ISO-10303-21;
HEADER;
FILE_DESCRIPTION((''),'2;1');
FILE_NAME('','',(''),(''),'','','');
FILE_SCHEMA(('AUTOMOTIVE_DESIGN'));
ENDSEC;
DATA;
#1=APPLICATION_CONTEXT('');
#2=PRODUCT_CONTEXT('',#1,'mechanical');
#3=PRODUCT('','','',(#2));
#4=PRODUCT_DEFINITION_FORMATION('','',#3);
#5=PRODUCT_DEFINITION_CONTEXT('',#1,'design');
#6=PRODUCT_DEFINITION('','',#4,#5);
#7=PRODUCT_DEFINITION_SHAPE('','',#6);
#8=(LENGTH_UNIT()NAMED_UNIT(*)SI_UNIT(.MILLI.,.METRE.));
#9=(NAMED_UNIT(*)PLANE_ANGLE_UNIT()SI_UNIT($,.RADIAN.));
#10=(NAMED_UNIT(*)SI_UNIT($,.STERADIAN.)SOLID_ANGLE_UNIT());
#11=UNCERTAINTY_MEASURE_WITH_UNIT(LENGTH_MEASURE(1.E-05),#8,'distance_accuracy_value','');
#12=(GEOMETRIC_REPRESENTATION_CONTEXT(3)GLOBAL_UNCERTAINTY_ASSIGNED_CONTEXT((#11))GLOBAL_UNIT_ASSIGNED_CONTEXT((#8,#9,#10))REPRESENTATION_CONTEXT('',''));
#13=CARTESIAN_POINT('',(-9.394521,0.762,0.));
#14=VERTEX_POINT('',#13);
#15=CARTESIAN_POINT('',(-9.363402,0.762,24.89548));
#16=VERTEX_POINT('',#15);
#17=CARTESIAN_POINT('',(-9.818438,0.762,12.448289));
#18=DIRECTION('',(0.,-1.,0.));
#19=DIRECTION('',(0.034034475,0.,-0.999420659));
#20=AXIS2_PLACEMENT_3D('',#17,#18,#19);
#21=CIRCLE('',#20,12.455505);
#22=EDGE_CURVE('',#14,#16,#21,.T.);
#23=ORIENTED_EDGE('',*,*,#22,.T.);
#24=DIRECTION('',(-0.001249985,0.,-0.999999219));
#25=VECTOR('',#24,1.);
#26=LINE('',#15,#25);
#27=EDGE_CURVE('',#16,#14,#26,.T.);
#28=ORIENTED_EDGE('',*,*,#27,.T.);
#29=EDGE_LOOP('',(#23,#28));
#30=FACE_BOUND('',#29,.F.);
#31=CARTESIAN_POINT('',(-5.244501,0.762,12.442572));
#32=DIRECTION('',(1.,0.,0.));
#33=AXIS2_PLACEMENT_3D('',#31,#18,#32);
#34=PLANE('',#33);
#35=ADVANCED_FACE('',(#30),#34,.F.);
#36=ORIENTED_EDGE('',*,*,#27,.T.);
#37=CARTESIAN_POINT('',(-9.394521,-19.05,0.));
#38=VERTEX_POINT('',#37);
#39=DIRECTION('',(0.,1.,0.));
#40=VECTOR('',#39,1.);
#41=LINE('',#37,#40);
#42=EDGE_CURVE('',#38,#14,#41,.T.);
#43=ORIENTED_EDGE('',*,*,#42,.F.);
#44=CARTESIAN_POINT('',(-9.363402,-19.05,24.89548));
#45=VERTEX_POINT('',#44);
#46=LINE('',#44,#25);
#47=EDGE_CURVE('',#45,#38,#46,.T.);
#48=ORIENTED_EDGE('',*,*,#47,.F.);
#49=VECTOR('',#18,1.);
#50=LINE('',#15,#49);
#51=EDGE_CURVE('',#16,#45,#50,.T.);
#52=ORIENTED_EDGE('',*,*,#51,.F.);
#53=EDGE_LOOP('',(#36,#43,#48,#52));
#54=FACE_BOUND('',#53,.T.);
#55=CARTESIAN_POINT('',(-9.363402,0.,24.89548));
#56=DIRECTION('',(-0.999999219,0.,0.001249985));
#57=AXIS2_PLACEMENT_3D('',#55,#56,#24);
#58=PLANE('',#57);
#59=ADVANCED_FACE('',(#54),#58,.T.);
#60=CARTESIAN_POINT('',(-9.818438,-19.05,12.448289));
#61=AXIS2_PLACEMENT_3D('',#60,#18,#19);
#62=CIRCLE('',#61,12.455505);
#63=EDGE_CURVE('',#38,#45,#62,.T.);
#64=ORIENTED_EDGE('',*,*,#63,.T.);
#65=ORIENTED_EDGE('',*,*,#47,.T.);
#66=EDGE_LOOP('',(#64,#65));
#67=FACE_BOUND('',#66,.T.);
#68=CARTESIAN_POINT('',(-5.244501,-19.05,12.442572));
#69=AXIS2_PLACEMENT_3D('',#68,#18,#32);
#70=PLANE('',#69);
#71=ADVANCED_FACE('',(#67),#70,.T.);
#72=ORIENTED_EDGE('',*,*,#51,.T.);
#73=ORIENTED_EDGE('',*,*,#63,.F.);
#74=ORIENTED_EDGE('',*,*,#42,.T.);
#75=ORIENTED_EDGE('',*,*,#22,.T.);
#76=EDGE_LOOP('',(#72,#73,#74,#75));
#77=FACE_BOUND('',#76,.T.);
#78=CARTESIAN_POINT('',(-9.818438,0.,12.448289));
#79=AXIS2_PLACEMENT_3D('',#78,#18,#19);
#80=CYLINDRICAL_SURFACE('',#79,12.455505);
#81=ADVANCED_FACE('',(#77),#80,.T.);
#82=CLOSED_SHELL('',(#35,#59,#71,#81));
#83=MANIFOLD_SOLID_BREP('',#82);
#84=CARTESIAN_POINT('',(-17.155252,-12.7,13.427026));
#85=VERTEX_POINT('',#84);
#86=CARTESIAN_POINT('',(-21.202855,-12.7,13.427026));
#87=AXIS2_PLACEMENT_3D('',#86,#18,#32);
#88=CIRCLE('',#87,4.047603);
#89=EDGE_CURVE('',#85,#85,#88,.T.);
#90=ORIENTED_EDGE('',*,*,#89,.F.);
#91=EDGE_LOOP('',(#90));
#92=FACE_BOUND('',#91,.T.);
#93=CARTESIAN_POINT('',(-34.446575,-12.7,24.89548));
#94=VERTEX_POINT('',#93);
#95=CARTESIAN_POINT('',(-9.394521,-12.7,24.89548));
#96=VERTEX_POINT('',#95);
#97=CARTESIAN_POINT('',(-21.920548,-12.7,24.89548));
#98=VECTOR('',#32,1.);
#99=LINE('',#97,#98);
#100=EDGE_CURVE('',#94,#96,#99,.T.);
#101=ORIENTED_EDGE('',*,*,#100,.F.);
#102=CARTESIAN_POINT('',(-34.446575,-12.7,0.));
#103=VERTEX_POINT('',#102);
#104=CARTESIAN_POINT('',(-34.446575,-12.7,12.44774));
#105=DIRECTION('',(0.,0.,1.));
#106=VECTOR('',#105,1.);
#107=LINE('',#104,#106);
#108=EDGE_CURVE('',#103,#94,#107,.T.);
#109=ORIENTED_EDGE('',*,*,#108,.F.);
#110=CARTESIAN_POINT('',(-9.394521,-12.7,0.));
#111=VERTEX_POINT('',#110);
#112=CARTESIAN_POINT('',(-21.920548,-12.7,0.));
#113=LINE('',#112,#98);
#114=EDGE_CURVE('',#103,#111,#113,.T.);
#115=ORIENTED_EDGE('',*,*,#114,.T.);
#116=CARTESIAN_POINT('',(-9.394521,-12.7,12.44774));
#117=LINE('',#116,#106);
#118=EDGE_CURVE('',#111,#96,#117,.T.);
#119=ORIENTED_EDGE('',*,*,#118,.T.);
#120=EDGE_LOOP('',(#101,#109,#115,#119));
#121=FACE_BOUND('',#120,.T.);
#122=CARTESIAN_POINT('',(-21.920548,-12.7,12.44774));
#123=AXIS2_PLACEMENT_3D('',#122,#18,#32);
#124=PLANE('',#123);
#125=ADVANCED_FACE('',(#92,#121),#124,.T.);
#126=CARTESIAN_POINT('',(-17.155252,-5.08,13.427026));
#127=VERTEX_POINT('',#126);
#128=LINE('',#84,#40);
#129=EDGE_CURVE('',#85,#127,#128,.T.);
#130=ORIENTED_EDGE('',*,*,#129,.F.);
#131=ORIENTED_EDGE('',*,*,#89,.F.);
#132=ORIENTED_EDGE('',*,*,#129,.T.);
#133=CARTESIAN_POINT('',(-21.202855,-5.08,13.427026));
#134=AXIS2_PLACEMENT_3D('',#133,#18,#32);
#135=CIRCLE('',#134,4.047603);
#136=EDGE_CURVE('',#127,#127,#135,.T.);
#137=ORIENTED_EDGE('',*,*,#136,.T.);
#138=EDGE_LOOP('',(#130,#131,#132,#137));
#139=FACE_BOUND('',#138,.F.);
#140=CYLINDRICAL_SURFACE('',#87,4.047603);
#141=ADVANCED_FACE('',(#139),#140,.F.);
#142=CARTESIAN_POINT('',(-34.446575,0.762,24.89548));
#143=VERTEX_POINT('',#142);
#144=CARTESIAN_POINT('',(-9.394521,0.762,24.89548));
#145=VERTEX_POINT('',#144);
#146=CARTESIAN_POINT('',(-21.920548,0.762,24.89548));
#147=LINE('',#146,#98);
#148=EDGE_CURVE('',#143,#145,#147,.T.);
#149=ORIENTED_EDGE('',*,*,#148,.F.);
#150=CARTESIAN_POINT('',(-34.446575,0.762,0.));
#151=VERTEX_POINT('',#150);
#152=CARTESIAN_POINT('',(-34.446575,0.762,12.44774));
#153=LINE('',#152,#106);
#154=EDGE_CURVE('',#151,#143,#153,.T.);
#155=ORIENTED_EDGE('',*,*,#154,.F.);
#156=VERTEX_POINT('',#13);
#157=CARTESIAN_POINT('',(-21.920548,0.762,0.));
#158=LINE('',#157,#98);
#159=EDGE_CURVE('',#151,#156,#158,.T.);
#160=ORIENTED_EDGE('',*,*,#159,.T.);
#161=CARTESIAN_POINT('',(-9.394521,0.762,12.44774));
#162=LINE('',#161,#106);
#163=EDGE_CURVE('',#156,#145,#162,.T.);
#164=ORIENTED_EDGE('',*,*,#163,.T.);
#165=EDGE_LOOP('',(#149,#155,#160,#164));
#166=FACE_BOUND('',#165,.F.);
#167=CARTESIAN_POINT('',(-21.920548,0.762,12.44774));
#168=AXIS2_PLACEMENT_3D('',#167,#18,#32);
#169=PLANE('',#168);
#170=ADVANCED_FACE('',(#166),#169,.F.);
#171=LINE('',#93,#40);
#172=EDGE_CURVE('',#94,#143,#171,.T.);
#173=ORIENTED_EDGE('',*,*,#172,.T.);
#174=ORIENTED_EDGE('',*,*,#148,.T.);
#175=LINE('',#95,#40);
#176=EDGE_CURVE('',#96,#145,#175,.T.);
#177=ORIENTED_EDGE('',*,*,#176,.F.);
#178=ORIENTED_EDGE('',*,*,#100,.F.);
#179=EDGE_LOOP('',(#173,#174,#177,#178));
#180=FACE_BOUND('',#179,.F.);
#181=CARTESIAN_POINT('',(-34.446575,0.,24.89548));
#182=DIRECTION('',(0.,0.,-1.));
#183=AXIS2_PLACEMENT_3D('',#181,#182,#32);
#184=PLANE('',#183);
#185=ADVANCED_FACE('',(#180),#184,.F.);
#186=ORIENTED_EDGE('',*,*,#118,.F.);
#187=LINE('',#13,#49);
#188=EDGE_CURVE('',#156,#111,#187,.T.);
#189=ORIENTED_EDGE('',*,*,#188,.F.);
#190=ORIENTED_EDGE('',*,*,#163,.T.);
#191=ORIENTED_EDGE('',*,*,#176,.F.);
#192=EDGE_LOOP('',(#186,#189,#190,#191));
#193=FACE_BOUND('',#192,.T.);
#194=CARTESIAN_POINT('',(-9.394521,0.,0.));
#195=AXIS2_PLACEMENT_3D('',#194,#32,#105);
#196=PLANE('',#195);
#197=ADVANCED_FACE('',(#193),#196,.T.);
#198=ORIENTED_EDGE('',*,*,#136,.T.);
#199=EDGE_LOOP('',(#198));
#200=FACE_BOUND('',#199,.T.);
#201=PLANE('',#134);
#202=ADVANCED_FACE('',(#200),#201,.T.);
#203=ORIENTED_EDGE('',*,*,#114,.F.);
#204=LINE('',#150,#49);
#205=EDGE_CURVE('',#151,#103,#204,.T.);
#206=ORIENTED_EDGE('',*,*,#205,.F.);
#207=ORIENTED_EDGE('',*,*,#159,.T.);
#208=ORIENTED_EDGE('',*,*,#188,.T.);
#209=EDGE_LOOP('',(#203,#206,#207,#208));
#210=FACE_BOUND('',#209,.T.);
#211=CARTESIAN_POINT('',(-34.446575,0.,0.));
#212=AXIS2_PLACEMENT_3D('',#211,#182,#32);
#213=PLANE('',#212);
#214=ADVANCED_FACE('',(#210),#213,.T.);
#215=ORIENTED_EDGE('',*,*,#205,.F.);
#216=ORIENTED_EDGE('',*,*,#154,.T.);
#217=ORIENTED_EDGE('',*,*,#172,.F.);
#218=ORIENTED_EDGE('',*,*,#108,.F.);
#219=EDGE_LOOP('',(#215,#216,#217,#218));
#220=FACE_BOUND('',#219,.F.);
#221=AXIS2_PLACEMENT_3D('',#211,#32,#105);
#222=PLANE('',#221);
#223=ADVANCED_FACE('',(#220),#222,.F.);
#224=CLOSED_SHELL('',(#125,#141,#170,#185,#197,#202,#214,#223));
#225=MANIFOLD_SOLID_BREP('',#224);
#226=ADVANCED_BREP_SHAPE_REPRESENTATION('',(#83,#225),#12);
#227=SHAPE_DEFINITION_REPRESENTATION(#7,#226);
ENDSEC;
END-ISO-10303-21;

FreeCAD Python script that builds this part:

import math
import FreeCAD as App
import Part
import Sketcher
Q = App.Units.Quantity


def add_polygon(sketch, points):
    """Adds a closed chain of lines whose ends are joined by coincident constraints."""
    first, n = sketch.GeometryCount, len(points)
    for a, b in zip(points, points[1:] + points[:1]):
        sketch.addGeometry(Part.LineSegment(App.Vector(*a, 0), App.Vector(*b, 0)), False)
    for i in range(n):
        sketch.addConstraint(Sketcher.Constraint("Coincident", first + i, 2, first + (i + 1) % n, 1))

doc = App.newDocument("Part")
body = doc.addObject("PartDesign::Body", "Body")

# Sketch on XZ plane
sketch1 = doc.addObject("Sketcher::SketchObject", "Sketch")
body.addObject(sketch1)
sketch1.AttachmentSupport = (doc.XZ_Plane, [""])
sketch1.MapMode = "FlatFace"
add_polygon(sketch1, [(-34.446575, 24.89548), (-34.446575, 0), (-9.394521, 0), (-9.394521, 24.89548)])  # lines 0-3
sketch1.addConstraint([
    Sketcher.Constraint("Vertical", 0),
    Sketcher.Constraint("Horizontal", 1),
    Sketcher.Constraint("Vertical", 2),
    Sketcher.Constraint("Horizontal", 3),
    Sketcher.Constraint("PointOnObject", 0, 2, -1),
    Sketcher.Constraint("DistanceY", 0, 2, 0, 1, Q("24.89548 mm")),
    Sketcher.Constraint("DistanceX", 1, 1, 1, 2, Q("25.052054 mm")),
    Sketcher.Constraint("DistanceX", 1, 2, -1, 1, Q("9.394521 mm")),
])
pad1 = doc.addObject("PartDesign::Pad", "Pad")
body.addObject(pad1)
pad1.Profile = sketch1
pad1.Type = "TwoLengths"
pad1.Length = Q("0.5 in")
pad1.Length2 = Q("0.03 in")

# Sketch on XZ plane
sketch2 = doc.addObject("Sketcher::SketchObject", "Sketch001")
body.addObject(sketch2)
sketch2.AttachmentSupport = (doc.XZ_Plane, [""])
sketch2.MapMode = "FlatFace"
sketch2.AttachmentOffset = App.Placement(App.Vector(0, 0, 0.5 * 25.4), App.Rotation())
sketch2.addGeometry(Part.Circle(App.Vector(-21.202855, 13.427026, 0), App.Vector(0, 0, 1), 4.047603), False)
sketch2.addConstraint([
    Sketcher.Constraint("Diameter", 0, Q("8.095206 mm")),
    Sketcher.Constraint("DistanceX", 0, 3, -1, 1, Q("21.202855 mm")),
    Sketcher.Constraint("DistanceY", -1, 1, 0, 3, Q("13.427026 mm")),
])
pocket1 = doc.addObject("PartDesign::Pocket", "Pocket")
body.addObject(pocket1)
pocket1.Profile = sketch2
pocket1.Length = Q("0.3 in")
body2 = doc.addObject("PartDesign::Body", "Body001")

# Sketch on XZ plane
sketch3 = doc.addObject("Sketcher::SketchObject", "Sketch002")
body2.addObject(sketch3)
sketch3.AttachmentSupport = (doc.getObject("XZ_Plane001"), [""])
sketch3.MapMode = "FlatFace"
sketch3.addGeometry([
    Part.ArcOfCircle(Part.Circle(App.Vector(-9.818438, 12.448289, 0), App.Vector(0, 0, 1), 12.455505), math.radians(-88.049592), math.radians(87.906354)),
    Part.LineSegment(App.Vector(-9.363402, 24.89548, 0), App.Vector(-9.394521, 0, 0)),
], False)
sketch3.addConstraint([
    Sketcher.Constraint("Coincident", 0, 1, 1, 2),
    Sketcher.Constraint("Coincident", 1, 1, 0, 2),
    Sketcher.Constraint("PointOnObject", 0, 1, -1),
    Sketcher.Constraint("Radius", 0, Q("12.455505 mm")),
    Sketcher.Constraint("Distance", 1, Q("24.895499 mm")),
    Sketcher.Constraint("DistanceY", -1, 1, 0, 3, Q("12.448289 mm")),
    Sketcher.Constraint("DistanceX", 0, 1, -1, 1, Q("9.394521 mm")),
])
pad2 = doc.addObject("PartDesign::Pad", "Pad001")
body2.addObject(pad2)
pad2.Profile = sketch3
pad2.Type = "TwoLengths"
pad2.Length = Q("0.75 in")
pad2.Length2 = Q("0.03 in")

doc.recompute()
